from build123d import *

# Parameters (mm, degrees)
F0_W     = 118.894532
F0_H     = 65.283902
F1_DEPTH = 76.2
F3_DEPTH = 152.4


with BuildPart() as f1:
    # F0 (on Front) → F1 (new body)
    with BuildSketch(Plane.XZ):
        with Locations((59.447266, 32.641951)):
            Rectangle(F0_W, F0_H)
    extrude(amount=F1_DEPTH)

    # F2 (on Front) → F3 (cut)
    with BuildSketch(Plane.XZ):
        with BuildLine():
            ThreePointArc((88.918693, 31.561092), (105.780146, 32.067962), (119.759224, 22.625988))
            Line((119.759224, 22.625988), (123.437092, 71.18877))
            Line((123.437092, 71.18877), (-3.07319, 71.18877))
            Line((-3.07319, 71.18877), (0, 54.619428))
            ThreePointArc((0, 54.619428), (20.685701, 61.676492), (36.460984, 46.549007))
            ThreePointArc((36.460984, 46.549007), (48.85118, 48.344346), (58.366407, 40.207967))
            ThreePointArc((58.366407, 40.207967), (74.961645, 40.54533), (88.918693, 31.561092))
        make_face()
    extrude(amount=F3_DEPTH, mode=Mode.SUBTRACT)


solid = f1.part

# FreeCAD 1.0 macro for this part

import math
import FreeCAD as App
import Part
import Sketcher

V = App.Vector
Q = App.Units.Quantity


def add_polygon(sketch, points):
    """Adds a closed chain of lines whose ends are joined by coincident constraints."""
    first, n = sketch.GeometryCount, len(points)
    for a, b in zip(points, points[1:] + points[:1]):
        sketch.addGeometry(Part.LineSegment(App.Vector(*a, 0), App.Vector(*b, 0)), False)
    for i in range(n):
        sketch.addConstraint(Sketcher.Constraint("Coincident", first + i, 2, first + (i + 1) % n, 1))

doc = App.newDocument("Part")
body = doc.addObject("PartDesign::Body", "Body")

# Sketch on XZ plane
sketch1 = body.newObject("Sketcher::SketchObject", "Sketch")
sketch1.AttachmentSupport = (doc.getObject("XZ_Plane"), [""])
sketch1.MapMode = "FlatFace"
add_polygon(sketch1, [(0, 65), (0, 0), (119, 0), (119, 65)])  # lines 0-3
sketch1.addConstraint(Sketcher.Constraint("Vertical", 0))
sketch1.addConstraint(Sketcher.Constraint("Horizontal", 1))
sketch1.addConstraint(Sketcher.Constraint("Vertical", 2))
sketch1.addConstraint(Sketcher.Constraint("Horizontal", 3))
sketch1.addConstraint(Sketcher.Constraint("Coincident", 0, 2, -1, 1))
sketch1.addConstraint(Sketcher.Constraint("DistanceY", 0, 2, 0, 1, Q("65.283902 mm")))
sketch1.addConstraint(Sketcher.Constraint("DistanceX", 1, 1, 1, 2, Q("118.894532 mm")))
pad1 = body.newObject("PartDesign::Pad", "Pad")
pad1.Profile = sketch1
pad1.Length = Q("3 in")

# Sketch on XZ plane
sketch2 = body.newObject("Sketcher::SketchObject", "Sketch001")
sketch2.AttachmentSupport = (doc.getObject("XZ_Plane"), [""])
sketch2.MapMode = "FlatFace"
sketch2.addGeometry(Part.ArcOfCircle(Part.Circle(V(98, 6, 0), V(0, 0, 1), 27), math.radians(38), math.radians(110)), False)
sketch2.addGeometry(Part.LineSegment(V(120, 23, 0), V(123, 71, 0)), False)
sketch2.addGeometry(Part.LineSegment(V(123, 71, 0), V(-3, 71, 0)), False)
sketch2.addGeometry(Part.LineSegment(V(-3, 71, 0), V(0, 55, 0)), False)
sketch2.addGeometry(Part.ArcOfCircle(Part.Circle(V(16, 41, 0), V(0, 0, 1), 21), math.radians(15), math.radians(140)), False)
sketch2.addGeometry(Part.ArcOfCircle(Part.Circle(V(45, 34, 0), V(0, 0, 1), 15), math.radians(25), math.radians(123)), False)
sketch2.addGeometry(Part.ArcOfCircle(Part.Circle(V(67, 13, 0), V(0, 0, 1), 28), math.radians(40), math.radians(108)), False)
sketch2.addConstraint(Sketcher.Constraint("Coincident", 0, 1, 1, 1))
sketch2.addConstraint(Sketcher.Constraint("Coincident", 1, 2, 2, 1))
sketch2.addConstraint(Sketcher.Constraint("Coincident", 2, 2, 3, 1))
sketch2.addConstraint(Sketcher.Constraint("Coincident", 3, 2, 4, 2))
sketch2.addConstraint(Sketcher.Constraint("Coincident", 4, 1, 5, 2))
sketch2.addConstraint(Sketcher.Constraint("Coincident", 5, 1, 6, 2))
sketch2.addConstraint(Sketcher.Constraint("Coincident", 6, 1, 0, 2))
sketch2.addConstraint(Sketcher.Constraint("Horizontal", 2))
sketch2.addConstraint(Sketcher.Constraint("PointOnObject", 3, 2, -2))
sketch2.addConstraint(Sketcher.Constraint("Radius", 0, Q("27.473091 mm")))
sketch2.addConstraint(Sketcher.Constraint("Radius", 4, Q("21.024159 mm")))
sketch2.addConstraint(Sketcher.Constraint("Radius", 6, Q("28.439631 mm")))
sketch2.addConstraint(Sketcher.Constraint("Radius", 5, Q("15.159416 mm")))
sketch2.addConstraint(Sketcher.Constraint("DistanceX", -1, 1, 4, 3, Q("16.142101 mm")))
sketch2.addConstraint(Sketcher.Constraint("DistanceX", 6, 3, 1, 2, Q("56.220199 mm")))
sketch2.addConstraint(Sketcher.Constraint("DistanceY", 4, 3, 1, 2, Q("30.0396 mm")))
sketch2.addConstraint(Sketcher.Constraint("DistanceY", 0, 3, 3, 2, Q("48.939402 mm")))
sketch2.addConstraint(Sketcher.Constraint("DistanceX", 4, 1, 5, 3, Q("8.175 mm")))
sketch2.addConstraint(Sketcher.Constraint("DistanceX", 6, 3, 6, 1, Q("21.7018 mm")))
sketch2.addConstraint(Sketcher.Constraint("Distance", 3, Q("16.851931 mm")))
sketch2.addConstraint(Sketcher.Constraint("DistanceX", 2, 2, 2, 1, Q("126.510282 mm")))
sketch2.addConstraint(Sketcher.Constraint("DistanceY", -1, 1, 4, 3, Q("41.14917 mm")))
sketch2.addConstraint(Sketcher.Constraint("DistanceY", -1, 1, 5, 3, Q("33.782752 mm")))
sketch2.addConstraint(Sketcher.Constraint("DistanceY", -1, 1, 0, 1, Q("22.625988 mm")))
sketch2.addConstraint(Sketcher.Constraint("DistanceY", -1, 1, 6, 1, Q("31.561092 mm")))
pocket1 = body.newObject("PartDesign::Pocket", "Pocket")
pocket1.Profile = sketch2
pocket1.Length = Q("6 in")
pocket1.Reversed = True

doc.recompute()
